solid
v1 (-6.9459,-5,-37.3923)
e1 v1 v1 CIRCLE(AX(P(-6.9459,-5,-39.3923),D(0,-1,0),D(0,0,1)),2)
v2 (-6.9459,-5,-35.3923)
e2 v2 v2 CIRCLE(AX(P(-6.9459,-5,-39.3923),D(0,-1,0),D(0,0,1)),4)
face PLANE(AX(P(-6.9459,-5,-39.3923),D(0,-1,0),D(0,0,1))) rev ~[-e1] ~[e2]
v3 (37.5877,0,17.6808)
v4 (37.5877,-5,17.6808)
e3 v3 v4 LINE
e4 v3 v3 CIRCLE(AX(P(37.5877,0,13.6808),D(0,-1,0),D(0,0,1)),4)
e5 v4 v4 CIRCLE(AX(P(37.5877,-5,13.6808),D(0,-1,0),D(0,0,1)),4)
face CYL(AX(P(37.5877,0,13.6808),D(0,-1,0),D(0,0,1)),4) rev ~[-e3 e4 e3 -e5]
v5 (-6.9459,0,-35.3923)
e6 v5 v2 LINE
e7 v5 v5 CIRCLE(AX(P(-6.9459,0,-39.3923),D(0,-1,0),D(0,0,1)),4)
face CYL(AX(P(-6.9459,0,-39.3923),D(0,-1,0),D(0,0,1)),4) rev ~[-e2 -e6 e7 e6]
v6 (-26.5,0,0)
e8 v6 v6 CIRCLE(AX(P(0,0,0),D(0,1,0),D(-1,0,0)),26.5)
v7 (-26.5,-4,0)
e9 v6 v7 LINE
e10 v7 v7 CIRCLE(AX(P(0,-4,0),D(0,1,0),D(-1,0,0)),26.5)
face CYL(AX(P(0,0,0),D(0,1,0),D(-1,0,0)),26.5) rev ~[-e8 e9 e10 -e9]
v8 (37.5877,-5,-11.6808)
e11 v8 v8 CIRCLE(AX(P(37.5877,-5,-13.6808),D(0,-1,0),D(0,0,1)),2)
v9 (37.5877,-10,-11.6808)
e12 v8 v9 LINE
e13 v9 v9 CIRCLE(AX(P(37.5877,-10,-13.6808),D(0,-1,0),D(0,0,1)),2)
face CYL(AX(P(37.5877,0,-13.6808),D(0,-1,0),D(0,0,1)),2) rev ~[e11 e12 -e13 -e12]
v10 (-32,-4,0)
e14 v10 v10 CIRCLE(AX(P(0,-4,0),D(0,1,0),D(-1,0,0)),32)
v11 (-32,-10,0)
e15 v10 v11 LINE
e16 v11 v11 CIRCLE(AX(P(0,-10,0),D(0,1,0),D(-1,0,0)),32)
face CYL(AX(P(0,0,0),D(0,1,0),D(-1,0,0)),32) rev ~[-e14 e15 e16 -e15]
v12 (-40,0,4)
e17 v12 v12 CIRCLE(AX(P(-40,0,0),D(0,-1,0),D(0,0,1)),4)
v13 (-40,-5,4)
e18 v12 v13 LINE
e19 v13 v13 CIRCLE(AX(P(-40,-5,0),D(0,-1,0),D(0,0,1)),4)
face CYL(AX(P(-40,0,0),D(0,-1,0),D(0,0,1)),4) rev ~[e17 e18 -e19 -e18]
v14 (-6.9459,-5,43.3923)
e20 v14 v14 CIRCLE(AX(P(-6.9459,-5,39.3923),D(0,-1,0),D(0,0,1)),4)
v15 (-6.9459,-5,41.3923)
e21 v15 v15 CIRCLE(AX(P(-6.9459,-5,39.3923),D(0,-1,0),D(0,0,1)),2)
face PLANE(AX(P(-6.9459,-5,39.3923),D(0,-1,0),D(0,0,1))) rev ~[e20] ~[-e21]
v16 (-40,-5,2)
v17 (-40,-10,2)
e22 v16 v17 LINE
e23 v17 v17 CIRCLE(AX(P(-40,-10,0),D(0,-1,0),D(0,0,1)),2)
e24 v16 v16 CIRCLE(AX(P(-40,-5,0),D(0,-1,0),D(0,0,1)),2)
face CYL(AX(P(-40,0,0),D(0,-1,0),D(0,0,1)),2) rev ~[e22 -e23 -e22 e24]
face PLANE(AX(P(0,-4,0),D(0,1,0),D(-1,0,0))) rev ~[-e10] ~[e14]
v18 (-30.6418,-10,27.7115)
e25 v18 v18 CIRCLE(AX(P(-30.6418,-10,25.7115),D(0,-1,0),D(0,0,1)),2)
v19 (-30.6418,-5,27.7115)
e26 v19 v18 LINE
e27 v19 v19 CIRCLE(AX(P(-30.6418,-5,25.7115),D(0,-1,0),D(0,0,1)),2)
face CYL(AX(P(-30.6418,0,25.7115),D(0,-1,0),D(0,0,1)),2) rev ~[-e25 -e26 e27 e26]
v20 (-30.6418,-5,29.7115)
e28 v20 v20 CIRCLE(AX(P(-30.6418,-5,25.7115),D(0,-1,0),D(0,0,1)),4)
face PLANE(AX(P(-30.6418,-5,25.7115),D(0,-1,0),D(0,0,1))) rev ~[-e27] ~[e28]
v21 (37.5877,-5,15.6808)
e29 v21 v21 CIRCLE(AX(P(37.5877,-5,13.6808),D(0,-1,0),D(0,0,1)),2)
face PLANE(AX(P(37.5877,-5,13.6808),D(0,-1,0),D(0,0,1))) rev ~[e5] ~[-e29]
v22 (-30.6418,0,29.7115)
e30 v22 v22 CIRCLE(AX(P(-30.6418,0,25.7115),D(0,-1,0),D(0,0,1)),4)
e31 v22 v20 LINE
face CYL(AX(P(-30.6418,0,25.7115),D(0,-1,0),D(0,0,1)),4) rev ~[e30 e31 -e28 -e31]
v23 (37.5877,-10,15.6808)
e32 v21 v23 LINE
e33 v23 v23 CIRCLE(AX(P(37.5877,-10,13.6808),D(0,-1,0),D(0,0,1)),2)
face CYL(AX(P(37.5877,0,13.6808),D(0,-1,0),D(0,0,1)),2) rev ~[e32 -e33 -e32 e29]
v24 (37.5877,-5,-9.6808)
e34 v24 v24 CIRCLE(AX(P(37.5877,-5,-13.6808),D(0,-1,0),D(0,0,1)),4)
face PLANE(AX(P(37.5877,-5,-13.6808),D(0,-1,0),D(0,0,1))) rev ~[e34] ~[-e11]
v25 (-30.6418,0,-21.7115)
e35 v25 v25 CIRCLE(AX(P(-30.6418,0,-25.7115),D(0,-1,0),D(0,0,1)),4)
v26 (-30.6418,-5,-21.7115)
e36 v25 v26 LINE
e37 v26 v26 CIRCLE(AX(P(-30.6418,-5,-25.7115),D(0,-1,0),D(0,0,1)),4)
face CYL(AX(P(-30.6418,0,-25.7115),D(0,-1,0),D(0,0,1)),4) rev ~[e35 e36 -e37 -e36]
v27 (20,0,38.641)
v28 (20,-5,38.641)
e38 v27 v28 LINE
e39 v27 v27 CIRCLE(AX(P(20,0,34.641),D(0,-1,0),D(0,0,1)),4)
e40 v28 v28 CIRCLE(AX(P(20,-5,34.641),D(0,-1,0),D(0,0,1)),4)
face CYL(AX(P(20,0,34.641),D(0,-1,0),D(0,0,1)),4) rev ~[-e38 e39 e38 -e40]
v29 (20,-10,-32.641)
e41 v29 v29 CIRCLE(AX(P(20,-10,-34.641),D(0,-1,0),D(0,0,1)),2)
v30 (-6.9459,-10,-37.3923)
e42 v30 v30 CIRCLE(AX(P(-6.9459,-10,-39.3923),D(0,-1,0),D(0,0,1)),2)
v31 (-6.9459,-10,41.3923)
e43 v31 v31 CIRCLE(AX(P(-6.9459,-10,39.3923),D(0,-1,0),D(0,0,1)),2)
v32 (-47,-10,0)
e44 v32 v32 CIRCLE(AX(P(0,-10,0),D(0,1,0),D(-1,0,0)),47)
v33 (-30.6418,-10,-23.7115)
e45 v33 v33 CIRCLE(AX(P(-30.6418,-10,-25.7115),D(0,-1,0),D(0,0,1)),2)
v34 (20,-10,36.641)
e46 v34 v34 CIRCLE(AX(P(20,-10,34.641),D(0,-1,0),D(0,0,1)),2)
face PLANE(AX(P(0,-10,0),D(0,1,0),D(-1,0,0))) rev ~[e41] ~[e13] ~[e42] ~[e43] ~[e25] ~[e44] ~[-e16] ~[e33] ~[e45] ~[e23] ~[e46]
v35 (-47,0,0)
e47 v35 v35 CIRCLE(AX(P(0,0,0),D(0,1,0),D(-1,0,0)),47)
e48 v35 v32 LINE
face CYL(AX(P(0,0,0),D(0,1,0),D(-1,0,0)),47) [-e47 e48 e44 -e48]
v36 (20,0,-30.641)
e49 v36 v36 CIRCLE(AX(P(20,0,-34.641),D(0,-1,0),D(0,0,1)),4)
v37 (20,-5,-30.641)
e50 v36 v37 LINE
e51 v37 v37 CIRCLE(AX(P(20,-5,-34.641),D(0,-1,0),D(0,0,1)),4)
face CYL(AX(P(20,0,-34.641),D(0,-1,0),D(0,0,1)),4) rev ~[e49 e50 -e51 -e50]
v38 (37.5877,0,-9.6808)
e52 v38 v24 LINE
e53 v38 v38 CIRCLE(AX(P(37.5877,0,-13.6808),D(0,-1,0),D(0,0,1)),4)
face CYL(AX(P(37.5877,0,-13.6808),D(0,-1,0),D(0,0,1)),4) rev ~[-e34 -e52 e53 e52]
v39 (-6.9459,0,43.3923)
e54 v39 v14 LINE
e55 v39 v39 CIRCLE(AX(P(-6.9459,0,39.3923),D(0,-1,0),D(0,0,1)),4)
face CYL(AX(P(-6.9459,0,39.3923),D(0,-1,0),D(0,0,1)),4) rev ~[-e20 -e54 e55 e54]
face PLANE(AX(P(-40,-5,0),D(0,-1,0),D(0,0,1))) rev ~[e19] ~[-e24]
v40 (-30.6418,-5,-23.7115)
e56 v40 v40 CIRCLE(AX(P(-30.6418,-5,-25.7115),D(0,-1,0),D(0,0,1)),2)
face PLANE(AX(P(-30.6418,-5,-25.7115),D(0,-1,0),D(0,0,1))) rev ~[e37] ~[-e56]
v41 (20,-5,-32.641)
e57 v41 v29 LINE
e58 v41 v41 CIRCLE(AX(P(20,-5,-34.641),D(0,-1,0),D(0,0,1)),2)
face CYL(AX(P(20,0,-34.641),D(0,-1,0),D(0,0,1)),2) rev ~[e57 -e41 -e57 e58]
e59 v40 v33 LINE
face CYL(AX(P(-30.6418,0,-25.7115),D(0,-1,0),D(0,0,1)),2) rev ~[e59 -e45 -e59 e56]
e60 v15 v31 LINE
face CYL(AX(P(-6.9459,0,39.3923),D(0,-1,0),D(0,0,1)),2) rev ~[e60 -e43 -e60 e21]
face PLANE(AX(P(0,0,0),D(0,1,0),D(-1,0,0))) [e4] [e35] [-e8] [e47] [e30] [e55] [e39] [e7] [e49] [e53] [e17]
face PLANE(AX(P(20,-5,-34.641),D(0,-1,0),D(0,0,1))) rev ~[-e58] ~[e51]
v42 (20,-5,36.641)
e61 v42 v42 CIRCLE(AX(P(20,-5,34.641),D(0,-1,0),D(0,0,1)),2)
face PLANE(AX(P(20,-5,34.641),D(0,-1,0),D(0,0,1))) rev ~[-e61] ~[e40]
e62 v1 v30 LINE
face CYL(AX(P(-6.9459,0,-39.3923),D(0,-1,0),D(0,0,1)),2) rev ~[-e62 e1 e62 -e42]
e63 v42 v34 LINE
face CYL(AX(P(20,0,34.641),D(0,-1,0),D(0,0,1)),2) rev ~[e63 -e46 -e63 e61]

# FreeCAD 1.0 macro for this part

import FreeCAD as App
import Part
import Sketcher

V = App.Vector

doc = App.newDocument("Part")
body = doc.addObject("PartDesign::Body", "Body")

# Sketch on XZ plane
sketch1 = doc.addObject("Sketcher::SketchObject", "Sketch")
body.addObject(sketch1)
sketch1.AttachmentSupport = (doc.XZ_Plane, [""])
sketch1.MapMode = "FlatFace"
sketch1.addGeometry([
    Part.Circle(V(0, 0, 0), V(0, 0, 1), 32),
    Part.Circle(V(0, 0, 0), V(0, 0, 1), 26),
], False)
sketch1.addConstraint([
    Sketcher.Constraint("Coincident", 0, 3, -1, 1),
    Sketcher.Constraint("Coincident", 1, 3, -1, 1),
    Sketcher.Constraint("Diameter", 0, 64.0),
    Sketcher.Constraint("Diameter", 1, 53.0),
])
pad1 = doc.addObject("PartDesign::Pad", "Pad")
body.addObject(pad1)
pad1.Profile = sketch1
pad1.Length = 4

# Sketch on XZ plane
sketch2 = doc.addObject("Sketcher::SketchObject", "Sketch001")
body.addObject(sketch2)
sketch2.AttachmentSupport = (doc.XZ_Plane, [""])
sketch2.MapMode = "FlatFace"
sketch2.addGeometry([
    Part.Circle(V(0, 0, 0), V(0, 0, 1), 47),
    Part.Circle(V(0, 0, 0), V(0, 0, 1), 32),
], False)
sketch2.addConstraint([
    Sketcher.Constraint("Coincident", 0, 3, -1, 1),
    Sketcher.Constraint("Coincident", 1, 3, -1, 1),
    Sketcher.Constraint("Diameter", 0, 94.0),
    Sketcher.Constraint("Diameter", 1, 64.0),
])
pad2 = doc.addObject("PartDesign::Pad", "Pad001")
body.addObject(pad2)
pad2.Profile = sketch2
pad2.Length = 10

# Sketch on XZ plane
sketch3 = doc.addObject("Sketcher::SketchObject", "Sketch002")
body.addObject(sketch3)
sketch3.AttachmentSupport = (doc.XZ_Plane, [""])
sketch3.MapMode = "FlatFace"
sketch3.addGeometry([
    Part.Circle(V(-40, 0, 0), V(0, 0, 1), 4),  # 0
    Part.Circle(V(-30.6, 25.7, 0), V(0, 0, 1), 4),  # 1
    Part.Circle(V(-6.9, 39.4, 0), V(0, 0, 1), 4),  # 2
    Part.Circle(V(20, 34.6, 0), V(0, 0, 1), 4),  # 3
    Part.Circle(V(37.6, 13.7, 0), V(0, 0, 1), 4),  # 4
    Part.Circle(V(37.6, -13.7, 0), V(0, 0, 1), 4),  # 5
    Part.Circle(V(20, -34.6, 0), V(0, 0, 1), 4),  # 6
    Part.Circle(V(-6.9, -39.4, 0), V(0, 0, 1), 4),  # 7
    Part.Circle(V(-30.6, -25.7, 0), V(0, 0, 1), 4),  # 8
], False)
sketch3.addConstraint([
    Sketcher.Constraint("Equal", 0, 1),
    Sketcher.Constraint("Equal", 1, 2),
    Sketcher.Constraint("Equal", 2, 3),
    Sketcher.Constraint("Equal", 3, 4),
    Sketcher.Constraint("Equal", 4, 5),
    Sketcher.Constraint("Equal", 5, 6),
    Sketcher.Constraint("Equal", 6, 7),
    Sketcher.Constraint("Equal", 7, 8),
    Sketcher.Constraint("Symmetric", 4, 3, 5, 3, -1),
    Sketcher.Constraint("Symmetric", 3, 3, 6, 3, -1),
    Sketcher.Constraint("Symmetric", 2, 3, 7, 3, -1),
    Sketcher.Constraint("Symmetric", 1, 3, 8, 3, -1),
    Sketcher.Constraint("PointOnObject", 0, 3, -1),
    Sketcher.Constraint("Diameter", 0, 8.0),
    Sketcher.Constraint("DistanceX", 0, 3, -1, 1, 40.0),
    Sketcher.Constraint("DistanceX", -1, 1, 3, 3, 20.0),
    Sketcher.Constraint("DistanceX", 2, 3, -1, 1, 6.946),
    Sketcher.Constraint("DistanceY", -1, 1, 3, 3, 34.641),
    Sketcher.Constraint("DistanceX", 1, 3, 2, 3, 23.696),
    Sketcher.Constraint("DistanceY", 5, 3, 2, 3, 53.073),
    Sketcher.Constraint("DistanceY", 8, 3, 1, 3, 51.423),
    Sketcher.Constraint("DistanceY", -1, 1, 2, 3, 39.3923),
    Sketcher.Constraint("DistanceX", -1, 1, 4, 3, 37.5877),
])
doc.recompute()
hole = doc.addObject("PartDesign::Hole", "Hole")
body.addObject(hole)
hole.Profile = sketch3
hole.ThreadType = "None"
hole.Diameter = 8
hole.DepthType = "Dimension"
hole.Depth = 5
hole.DrillPoint = "Flat"
hole.Reversed = True

# Sketch on XZ plane
sketch4 = doc.addObject("Sketcher::SketchObject", "Sketch003")
body.addObject(sketch4)
sketch4.AttachmentSupport = (doc.XZ_Plane, [""])
sketch4.MapMode = "FlatFace"
sketch4.addGeometry([
    Part.Circle(V(-30.6, -25.7, 0), V(0, 0, 1), 2),  # 0
    Part.Circle(V(-6.9, -39.4, 0), V(0, 0, 1), 2),  # 1
    Part.Circle(V(20, -34.6, 0), V(0, 0, 1), 2),  # 2
    Part.Circle(V(37.6, -13.7, 0), V(0, 0, 1), 2),  # 3
    Part.Circle(V(37.6, 13.7, 0), V(0, 0, 1), 2),  # 4
    Part.Circle(V(-40, 0, 0), V(0, 0, 1), 2),  # 5
    Part.Circle(V(20, 34.6, 0), V(0, 0, 1), 2),  # 6
    Part.Circle(V(-6.9, 39.4, 0), V(0, 0, 1), 2),  # 7
    Part.Circle(V(-30.6, 25.7, 0), V(0, 0, 1), 2),  # 8
], False)
sketch4.addConstraint([
    Sketcher.Constraint("Equal", 0, 1),
    Sketcher.Constraint("Equal", 1, 2),
    Sketcher.Constraint("Equal", 2, 3),
    Sketcher.Constraint("Equal", 3, 4),
    Sketcher.Constraint("Equal", 4, 5),
    Sketcher.Constraint("Equal", 5, 6),
    Sketcher.Constraint("Equal", 6, 7),
    Sketcher.Constraint("Equal", 7, 8),
    Sketcher.Constraint("Symmetric", 3, 3, 4, 3, -1),
    Sketcher.Constraint("Symmetric", 2, 3, 6, 3, -1),
    Sketcher.Constraint("Symmetric", 1, 3, 7, 3, -1),
    Sketcher.Constraint("Symmetric", 0, 3, 8, 3, -1),
    Sketcher.Constraint("PointOnObject", 5, 3, -1),
    Sketcher.Constraint("Diameter", 0, 4.0),
    Sketcher.Constraint("DistanceX", -1, 1, 2, 3, 20.0),
    Sketcher.Constraint("DistanceX", 5, 3, -1, 1, 40.0),
    Sketcher.Constraint("DistanceX", 1, 3, -1, 1, 6.946),
    Sketcher.Constraint("DistanceY", 2, 3, -1, 1, 34.641),
    Sketcher.Constraint("DistanceX", 0, 3, 1, 3, 23.696),
    Sketcher.Constraint("DistanceY", 1, 3, 4, 3, 53.073),
    Sketcher.Constraint("DistanceY", 0, 3, 8, 3, 51.423),
    Sketcher.Constraint("DistanceY", 1, 3, -1, 1, 39.3923),
    Sketcher.Constraint("DistanceX", -1, 1, 3, 3, 37.5877),
])
doc.recompute()
hole2 = doc.addObject("PartDesign::Hole", "Hole001")
body.addObject(hole2)
hole2.Profile = sketch4
hole2.ThreadType = "None"
hole2.Diameter = 4
hole2.DepthType = "Dimension"
hole2.Depth = 10
hole2.DrillPoint = "Flat"
hole2.Reversed = True

doc.recompute()
